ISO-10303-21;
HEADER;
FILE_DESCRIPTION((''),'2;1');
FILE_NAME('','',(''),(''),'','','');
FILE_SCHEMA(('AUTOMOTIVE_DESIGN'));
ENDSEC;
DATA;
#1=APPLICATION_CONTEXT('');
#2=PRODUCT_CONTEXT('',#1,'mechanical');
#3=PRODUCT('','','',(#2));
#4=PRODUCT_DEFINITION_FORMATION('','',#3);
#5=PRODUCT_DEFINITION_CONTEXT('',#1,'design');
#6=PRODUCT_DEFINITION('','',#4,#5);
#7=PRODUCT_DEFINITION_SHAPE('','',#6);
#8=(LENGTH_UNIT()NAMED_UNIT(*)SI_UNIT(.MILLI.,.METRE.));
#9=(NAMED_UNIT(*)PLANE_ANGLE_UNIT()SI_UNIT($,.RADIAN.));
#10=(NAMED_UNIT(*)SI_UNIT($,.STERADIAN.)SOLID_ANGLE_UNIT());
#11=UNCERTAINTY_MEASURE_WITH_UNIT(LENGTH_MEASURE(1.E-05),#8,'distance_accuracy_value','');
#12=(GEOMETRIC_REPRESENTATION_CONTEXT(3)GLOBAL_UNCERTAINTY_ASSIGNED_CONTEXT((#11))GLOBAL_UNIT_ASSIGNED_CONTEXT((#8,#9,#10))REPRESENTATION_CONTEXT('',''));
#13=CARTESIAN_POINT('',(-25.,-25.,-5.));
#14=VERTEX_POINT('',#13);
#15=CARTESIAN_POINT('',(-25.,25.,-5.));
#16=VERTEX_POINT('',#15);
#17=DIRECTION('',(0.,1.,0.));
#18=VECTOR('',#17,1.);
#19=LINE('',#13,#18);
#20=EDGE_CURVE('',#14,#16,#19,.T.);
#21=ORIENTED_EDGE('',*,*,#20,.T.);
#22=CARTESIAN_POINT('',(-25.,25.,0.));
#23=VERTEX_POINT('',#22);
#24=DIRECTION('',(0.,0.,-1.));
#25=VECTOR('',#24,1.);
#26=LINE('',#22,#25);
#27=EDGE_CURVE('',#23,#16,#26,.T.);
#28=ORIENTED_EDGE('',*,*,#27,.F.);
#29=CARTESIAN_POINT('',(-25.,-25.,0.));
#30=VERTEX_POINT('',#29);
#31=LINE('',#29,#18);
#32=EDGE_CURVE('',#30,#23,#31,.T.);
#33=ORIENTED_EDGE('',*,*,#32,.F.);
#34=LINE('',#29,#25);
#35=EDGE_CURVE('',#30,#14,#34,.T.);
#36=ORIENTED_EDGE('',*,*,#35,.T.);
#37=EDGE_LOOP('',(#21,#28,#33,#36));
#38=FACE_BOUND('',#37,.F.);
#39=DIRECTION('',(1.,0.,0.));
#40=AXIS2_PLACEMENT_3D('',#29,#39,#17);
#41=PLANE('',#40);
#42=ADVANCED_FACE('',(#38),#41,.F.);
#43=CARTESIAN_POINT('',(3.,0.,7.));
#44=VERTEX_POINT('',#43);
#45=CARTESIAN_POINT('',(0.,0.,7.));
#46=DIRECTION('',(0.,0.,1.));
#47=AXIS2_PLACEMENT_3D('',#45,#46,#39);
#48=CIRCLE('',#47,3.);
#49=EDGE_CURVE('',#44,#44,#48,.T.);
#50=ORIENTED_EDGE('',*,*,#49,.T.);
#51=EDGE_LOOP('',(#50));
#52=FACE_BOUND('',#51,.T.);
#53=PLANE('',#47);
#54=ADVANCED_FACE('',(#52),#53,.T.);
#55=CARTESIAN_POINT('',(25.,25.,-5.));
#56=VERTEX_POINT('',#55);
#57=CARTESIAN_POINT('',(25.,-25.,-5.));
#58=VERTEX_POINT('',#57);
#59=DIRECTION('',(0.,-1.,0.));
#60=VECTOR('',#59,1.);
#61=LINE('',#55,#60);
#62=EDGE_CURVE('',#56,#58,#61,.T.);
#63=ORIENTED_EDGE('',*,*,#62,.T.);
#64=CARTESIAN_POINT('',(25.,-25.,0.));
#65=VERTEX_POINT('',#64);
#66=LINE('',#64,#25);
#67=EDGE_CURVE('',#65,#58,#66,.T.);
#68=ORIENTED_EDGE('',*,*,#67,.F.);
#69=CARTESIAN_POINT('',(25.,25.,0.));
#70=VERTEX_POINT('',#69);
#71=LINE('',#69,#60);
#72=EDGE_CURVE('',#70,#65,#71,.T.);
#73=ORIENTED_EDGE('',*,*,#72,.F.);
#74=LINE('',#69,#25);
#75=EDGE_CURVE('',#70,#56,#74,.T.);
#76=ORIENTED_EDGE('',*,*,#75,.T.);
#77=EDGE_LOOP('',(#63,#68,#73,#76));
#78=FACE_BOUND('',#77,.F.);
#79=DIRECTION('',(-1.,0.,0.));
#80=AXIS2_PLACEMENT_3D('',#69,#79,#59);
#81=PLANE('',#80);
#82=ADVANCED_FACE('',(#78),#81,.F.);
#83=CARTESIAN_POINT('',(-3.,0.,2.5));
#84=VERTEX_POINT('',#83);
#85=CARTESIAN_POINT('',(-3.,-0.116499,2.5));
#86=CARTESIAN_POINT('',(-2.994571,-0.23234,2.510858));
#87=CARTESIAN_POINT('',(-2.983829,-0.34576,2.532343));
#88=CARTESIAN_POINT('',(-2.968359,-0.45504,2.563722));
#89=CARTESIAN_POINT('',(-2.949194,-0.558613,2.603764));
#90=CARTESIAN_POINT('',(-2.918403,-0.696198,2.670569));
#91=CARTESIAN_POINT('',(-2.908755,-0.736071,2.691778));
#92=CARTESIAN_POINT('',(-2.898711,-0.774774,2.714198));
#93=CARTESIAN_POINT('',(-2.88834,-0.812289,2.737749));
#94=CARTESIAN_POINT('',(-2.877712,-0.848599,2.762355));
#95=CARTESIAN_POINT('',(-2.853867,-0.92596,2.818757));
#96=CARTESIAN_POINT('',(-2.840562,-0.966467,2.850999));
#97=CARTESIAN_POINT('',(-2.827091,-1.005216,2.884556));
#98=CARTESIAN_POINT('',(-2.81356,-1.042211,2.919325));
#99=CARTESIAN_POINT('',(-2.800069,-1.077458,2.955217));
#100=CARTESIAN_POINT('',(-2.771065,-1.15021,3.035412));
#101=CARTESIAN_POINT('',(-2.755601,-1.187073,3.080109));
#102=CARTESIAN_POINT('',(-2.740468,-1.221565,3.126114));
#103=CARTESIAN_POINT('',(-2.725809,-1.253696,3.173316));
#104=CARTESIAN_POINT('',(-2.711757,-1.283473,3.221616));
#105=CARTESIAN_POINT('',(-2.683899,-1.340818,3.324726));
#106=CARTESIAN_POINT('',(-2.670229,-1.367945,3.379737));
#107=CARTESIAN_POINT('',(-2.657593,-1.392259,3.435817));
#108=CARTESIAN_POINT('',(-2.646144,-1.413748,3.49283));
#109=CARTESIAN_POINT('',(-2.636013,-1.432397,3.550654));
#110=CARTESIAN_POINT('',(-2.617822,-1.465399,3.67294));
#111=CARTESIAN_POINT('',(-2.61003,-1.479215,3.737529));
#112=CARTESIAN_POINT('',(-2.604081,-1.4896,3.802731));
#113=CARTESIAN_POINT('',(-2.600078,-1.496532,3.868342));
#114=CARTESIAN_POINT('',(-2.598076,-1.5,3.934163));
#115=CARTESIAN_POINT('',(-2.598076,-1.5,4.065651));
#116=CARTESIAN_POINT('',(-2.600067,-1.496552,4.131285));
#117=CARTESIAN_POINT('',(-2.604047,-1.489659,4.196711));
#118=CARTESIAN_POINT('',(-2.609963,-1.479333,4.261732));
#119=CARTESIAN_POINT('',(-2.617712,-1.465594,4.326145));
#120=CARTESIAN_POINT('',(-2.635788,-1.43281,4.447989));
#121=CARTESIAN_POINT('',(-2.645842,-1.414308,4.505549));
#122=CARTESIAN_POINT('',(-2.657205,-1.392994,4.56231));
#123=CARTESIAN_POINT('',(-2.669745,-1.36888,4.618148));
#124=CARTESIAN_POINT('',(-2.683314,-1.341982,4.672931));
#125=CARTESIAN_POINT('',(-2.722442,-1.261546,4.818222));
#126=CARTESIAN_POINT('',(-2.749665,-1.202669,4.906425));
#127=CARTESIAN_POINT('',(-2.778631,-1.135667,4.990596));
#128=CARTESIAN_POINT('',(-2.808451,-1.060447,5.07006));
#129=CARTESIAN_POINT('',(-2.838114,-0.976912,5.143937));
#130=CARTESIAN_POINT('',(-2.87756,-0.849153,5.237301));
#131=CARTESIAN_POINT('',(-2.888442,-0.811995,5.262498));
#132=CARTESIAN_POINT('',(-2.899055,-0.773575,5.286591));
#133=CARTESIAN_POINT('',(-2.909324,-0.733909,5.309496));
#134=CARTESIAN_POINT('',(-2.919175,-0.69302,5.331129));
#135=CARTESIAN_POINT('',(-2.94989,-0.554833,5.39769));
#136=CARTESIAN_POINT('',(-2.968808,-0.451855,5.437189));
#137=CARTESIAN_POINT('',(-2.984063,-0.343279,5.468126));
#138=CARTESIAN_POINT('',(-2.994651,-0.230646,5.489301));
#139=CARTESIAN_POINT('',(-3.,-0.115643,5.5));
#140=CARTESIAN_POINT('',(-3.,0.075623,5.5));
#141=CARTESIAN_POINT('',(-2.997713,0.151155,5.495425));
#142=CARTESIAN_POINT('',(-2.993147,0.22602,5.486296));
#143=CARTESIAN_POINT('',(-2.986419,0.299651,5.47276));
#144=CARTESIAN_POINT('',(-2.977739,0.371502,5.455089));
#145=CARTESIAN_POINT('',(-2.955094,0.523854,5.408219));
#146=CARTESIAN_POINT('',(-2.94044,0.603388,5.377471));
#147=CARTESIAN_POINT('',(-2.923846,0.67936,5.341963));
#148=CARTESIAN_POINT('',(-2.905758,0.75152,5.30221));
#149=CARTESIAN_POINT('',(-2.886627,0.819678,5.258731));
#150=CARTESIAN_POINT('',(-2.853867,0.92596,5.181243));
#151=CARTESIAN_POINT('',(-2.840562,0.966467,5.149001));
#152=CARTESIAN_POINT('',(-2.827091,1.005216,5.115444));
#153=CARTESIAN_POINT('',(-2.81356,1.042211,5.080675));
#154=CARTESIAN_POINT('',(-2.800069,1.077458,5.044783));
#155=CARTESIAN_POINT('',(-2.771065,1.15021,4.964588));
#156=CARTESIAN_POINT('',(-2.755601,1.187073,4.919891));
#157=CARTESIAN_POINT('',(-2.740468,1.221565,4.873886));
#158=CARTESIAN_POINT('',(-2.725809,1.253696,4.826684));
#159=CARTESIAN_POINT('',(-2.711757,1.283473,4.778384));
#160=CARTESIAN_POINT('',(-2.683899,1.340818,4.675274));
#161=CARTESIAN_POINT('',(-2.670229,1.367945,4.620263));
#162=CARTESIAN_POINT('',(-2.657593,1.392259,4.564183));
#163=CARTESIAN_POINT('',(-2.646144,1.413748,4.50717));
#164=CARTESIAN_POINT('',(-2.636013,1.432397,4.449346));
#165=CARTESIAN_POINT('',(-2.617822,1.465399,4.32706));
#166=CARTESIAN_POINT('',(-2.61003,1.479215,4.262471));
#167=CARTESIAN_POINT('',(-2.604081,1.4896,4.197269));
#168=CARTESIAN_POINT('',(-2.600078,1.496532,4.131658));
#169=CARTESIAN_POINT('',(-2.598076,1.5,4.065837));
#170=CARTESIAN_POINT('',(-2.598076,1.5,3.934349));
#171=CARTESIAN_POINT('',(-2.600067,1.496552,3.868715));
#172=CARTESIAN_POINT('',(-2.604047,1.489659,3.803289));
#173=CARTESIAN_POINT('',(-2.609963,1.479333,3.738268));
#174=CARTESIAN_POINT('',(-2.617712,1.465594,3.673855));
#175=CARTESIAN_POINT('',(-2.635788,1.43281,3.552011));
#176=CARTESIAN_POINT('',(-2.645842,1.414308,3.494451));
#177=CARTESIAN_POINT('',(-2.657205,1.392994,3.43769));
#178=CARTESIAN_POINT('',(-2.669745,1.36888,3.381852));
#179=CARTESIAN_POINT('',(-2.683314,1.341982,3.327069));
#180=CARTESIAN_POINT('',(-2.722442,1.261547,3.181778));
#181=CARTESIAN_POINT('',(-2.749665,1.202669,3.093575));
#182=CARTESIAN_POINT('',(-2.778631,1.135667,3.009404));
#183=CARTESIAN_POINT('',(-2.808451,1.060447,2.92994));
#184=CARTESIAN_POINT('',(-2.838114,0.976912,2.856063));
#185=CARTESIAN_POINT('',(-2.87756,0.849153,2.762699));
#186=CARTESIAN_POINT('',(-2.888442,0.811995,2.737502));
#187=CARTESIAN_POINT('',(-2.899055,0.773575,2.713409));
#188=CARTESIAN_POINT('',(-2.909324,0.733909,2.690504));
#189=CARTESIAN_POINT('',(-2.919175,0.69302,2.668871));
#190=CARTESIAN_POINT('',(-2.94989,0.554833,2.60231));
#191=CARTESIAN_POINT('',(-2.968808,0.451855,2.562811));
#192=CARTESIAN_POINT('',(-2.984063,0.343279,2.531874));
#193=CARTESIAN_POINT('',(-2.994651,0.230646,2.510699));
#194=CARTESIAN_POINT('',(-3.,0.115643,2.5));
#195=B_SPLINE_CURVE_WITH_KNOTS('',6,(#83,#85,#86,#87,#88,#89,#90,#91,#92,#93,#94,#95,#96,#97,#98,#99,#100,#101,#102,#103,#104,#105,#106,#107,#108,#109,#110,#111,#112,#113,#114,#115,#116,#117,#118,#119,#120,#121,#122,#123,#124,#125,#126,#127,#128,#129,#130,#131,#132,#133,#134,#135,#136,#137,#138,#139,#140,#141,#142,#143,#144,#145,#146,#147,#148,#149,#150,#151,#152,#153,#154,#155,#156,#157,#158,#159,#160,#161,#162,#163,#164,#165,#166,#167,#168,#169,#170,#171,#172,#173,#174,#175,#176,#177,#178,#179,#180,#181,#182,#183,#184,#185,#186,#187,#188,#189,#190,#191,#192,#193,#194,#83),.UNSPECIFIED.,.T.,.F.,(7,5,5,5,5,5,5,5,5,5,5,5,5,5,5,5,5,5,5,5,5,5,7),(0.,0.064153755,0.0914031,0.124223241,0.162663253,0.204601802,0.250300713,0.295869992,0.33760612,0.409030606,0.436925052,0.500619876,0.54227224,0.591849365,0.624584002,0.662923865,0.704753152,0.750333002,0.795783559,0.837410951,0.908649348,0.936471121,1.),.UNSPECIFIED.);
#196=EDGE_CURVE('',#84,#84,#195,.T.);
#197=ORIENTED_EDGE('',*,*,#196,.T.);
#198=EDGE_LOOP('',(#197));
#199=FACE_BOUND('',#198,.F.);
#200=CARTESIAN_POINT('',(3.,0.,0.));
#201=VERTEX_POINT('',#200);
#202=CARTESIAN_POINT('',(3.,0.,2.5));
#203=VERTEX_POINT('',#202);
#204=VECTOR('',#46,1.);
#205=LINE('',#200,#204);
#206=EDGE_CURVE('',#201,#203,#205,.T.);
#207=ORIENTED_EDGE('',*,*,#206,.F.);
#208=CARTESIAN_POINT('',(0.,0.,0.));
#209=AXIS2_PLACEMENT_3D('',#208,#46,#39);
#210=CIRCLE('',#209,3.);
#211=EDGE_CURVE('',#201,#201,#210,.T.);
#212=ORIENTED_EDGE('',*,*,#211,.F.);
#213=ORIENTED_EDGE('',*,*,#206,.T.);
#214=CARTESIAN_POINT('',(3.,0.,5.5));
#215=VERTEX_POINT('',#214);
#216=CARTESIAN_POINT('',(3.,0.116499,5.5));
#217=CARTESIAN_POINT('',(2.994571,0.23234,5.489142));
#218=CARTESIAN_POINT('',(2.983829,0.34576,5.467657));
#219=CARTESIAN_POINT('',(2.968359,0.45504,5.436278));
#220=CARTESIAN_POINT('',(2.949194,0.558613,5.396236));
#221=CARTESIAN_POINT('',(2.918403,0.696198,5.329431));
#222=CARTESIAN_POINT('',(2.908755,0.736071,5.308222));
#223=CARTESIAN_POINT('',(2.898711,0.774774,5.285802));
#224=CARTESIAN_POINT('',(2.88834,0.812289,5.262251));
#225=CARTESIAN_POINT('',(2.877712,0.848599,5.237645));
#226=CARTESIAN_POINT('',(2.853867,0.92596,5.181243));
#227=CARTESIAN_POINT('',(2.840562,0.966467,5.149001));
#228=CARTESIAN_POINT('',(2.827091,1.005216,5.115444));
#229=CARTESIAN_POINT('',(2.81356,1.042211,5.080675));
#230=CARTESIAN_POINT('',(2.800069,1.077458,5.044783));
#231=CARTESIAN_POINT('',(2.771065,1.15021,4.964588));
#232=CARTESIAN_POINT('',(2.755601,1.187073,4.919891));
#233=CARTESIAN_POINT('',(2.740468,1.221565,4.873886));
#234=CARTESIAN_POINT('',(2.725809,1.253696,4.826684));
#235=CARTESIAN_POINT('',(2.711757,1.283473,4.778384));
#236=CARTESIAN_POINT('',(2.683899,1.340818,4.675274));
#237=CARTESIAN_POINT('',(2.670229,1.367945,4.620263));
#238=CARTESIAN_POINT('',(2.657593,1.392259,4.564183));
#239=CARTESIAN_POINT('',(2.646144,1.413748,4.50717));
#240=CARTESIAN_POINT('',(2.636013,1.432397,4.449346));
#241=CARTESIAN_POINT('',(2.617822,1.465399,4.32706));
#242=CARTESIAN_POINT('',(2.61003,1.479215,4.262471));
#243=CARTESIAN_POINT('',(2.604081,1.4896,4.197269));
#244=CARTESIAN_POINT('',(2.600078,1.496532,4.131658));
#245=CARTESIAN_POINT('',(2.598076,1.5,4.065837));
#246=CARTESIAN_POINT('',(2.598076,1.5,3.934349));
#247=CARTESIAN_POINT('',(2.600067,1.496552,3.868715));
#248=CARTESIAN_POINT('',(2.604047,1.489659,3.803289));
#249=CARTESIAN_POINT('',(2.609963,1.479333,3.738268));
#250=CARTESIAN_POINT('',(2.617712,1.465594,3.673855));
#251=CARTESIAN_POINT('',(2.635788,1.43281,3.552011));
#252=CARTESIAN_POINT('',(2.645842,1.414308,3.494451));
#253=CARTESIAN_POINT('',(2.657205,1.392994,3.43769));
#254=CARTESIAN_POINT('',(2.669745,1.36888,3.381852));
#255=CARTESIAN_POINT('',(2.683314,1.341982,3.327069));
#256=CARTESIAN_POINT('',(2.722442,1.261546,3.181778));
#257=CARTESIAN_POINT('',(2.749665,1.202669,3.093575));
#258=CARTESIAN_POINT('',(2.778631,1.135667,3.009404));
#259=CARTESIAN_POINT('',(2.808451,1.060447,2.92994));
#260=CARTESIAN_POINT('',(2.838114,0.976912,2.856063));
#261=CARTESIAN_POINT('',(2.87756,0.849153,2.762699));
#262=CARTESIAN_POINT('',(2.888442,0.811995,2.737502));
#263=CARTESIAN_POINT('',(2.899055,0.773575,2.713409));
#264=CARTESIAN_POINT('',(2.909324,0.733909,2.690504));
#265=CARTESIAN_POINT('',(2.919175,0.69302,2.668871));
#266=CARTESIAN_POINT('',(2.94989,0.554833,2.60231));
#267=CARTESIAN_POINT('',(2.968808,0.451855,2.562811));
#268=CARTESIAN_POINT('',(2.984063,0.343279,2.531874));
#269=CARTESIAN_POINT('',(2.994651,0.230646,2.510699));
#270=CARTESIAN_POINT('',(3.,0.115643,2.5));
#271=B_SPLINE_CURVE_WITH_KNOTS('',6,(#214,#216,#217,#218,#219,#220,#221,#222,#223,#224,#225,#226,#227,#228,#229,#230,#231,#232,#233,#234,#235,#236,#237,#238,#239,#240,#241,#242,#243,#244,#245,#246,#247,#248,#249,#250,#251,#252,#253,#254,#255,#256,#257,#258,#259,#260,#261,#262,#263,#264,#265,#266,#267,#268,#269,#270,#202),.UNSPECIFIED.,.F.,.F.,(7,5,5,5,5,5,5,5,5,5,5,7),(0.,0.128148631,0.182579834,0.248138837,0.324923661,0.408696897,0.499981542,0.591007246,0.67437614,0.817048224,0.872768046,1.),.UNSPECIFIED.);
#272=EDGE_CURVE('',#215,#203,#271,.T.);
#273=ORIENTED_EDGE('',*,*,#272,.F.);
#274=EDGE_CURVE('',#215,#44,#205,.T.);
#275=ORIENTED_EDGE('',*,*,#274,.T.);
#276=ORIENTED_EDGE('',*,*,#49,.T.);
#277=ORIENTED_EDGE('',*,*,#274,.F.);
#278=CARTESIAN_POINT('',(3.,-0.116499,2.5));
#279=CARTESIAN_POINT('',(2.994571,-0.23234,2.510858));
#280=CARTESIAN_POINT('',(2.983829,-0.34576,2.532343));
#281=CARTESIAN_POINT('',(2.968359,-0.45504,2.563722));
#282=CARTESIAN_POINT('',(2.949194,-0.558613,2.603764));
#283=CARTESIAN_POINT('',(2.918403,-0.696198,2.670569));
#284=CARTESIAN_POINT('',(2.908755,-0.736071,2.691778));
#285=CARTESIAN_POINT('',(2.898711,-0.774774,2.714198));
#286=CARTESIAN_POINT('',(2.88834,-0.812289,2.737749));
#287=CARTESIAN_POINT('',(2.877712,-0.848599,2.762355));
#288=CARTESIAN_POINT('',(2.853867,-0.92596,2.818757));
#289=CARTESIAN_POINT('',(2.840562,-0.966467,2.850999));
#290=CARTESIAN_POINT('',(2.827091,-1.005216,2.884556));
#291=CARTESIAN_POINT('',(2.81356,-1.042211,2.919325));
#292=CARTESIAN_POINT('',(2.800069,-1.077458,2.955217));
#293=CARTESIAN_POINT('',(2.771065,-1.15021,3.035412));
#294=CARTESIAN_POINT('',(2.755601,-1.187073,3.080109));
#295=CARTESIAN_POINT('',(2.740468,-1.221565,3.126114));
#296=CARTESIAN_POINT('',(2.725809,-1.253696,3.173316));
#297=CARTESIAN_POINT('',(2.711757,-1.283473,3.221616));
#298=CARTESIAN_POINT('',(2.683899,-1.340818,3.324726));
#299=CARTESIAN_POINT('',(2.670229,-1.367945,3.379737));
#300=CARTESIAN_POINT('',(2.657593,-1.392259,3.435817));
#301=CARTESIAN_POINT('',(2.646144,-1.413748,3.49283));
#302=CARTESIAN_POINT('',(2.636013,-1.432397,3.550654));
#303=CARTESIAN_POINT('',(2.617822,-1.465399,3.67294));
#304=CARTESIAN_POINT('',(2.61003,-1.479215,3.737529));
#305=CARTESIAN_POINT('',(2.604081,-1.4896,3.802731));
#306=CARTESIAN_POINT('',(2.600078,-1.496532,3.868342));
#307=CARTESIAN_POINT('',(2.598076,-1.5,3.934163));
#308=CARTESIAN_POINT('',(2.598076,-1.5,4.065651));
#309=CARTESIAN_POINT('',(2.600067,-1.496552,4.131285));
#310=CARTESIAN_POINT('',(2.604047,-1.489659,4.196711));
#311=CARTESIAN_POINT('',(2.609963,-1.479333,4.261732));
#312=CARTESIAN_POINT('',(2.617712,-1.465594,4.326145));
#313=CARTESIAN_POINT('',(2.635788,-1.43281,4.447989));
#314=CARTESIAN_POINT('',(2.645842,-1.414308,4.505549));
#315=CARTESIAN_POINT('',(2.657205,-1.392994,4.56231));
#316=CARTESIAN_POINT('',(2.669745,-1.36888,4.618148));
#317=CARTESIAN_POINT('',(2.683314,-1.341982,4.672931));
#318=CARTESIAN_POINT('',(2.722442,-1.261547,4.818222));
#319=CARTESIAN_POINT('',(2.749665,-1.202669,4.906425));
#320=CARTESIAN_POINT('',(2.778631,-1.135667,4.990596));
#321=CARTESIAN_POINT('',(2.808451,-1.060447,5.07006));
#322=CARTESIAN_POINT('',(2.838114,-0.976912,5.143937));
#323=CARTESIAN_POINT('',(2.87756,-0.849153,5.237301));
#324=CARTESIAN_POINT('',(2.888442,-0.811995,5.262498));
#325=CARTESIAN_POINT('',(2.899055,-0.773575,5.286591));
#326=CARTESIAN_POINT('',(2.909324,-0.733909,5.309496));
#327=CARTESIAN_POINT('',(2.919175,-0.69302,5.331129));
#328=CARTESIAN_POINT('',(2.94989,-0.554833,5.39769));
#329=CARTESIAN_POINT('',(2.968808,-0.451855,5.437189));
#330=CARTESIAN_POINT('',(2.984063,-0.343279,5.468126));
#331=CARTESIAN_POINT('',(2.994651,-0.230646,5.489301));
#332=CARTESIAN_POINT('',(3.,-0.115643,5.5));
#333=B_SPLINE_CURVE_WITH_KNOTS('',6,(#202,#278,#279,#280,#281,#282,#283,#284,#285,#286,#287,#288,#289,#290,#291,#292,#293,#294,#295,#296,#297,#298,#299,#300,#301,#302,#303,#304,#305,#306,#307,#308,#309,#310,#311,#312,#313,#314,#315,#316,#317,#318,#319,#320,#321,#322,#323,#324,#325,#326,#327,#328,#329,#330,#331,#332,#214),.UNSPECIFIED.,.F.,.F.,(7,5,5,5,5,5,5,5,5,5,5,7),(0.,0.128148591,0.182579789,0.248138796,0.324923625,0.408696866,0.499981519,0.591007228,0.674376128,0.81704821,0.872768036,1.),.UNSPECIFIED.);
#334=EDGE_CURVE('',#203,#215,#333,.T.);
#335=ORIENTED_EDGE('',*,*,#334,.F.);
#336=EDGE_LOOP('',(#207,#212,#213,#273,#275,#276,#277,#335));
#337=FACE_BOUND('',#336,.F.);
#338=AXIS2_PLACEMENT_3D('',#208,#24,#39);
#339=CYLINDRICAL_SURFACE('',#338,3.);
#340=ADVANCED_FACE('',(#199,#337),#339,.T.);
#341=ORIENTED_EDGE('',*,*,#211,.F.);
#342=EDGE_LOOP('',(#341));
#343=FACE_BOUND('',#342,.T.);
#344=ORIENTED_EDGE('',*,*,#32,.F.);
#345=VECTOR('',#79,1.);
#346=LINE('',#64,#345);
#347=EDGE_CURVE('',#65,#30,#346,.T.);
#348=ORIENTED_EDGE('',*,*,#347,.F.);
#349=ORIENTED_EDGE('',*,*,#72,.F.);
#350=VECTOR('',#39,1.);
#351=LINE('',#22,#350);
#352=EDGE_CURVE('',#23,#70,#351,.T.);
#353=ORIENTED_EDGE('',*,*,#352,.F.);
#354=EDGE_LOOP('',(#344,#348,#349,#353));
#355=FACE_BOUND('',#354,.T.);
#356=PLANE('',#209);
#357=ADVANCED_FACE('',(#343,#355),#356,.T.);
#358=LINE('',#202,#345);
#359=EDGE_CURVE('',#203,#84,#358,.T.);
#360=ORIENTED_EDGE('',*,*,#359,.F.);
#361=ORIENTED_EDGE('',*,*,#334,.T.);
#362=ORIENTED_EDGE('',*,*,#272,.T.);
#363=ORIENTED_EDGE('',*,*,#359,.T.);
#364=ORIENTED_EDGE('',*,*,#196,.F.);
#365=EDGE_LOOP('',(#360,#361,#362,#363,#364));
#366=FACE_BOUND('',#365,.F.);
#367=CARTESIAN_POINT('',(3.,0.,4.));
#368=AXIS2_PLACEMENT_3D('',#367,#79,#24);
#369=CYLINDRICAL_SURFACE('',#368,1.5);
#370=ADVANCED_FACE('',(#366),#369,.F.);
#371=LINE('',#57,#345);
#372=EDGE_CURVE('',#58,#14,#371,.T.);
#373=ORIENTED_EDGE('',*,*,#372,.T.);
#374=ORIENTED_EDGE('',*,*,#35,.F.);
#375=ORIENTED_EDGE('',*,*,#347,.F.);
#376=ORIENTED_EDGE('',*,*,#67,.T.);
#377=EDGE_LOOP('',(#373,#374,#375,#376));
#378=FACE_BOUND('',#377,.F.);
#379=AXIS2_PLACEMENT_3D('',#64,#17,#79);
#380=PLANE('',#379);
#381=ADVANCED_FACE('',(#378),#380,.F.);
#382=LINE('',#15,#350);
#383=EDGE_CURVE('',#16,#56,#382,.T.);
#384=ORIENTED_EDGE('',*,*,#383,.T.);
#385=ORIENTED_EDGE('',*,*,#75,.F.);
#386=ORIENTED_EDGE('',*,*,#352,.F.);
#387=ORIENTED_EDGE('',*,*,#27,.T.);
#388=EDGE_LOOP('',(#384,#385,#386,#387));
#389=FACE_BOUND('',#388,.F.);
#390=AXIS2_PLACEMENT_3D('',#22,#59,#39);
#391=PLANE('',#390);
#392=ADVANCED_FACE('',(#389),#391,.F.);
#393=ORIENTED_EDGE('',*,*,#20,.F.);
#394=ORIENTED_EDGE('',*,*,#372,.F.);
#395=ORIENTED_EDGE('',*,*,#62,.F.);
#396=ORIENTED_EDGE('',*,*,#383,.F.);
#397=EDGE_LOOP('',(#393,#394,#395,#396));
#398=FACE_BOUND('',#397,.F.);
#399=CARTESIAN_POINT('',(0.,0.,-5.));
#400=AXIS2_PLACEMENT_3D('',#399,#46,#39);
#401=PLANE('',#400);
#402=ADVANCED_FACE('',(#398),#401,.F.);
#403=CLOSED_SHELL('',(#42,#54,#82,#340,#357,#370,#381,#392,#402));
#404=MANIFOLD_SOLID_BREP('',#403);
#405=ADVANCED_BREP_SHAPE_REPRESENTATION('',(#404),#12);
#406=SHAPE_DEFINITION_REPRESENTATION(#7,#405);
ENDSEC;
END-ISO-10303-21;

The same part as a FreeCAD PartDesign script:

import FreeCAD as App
import Part
import Sketcher

V = App.Vector


def add_polygon(sketch, points):
    """Adds a closed chain of lines whose ends are joined by coincident constraints."""
    first, n = sketch.GeometryCount, len(points)
    for a, b in zip(points, points[1:] + points[:1]):
        sketch.addGeometry(Part.LineSegment(App.Vector(*a, 0), App.Vector(*b, 0)), False)
    for i in range(n):
        sketch.addConstraint(Sketcher.Constraint("Coincident", first + i, 2, first + (i + 1) % n, 1))

doc = App.newDocument("Part")
body = doc.addObject("PartDesign::Body", "Body")

sketch1 = body.newObject("Sketcher::SketchObject", "Sketch")
sketch1.AttachmentSupport = (doc.getObject("XY_Plane"), [""])
sketch1.MapMode = "FlatFace"
add_polygon(sketch1, [(25, 25), (-25, 25), (-25, -25), (25, -25)])
sketch1.addConstraint([
    Sketcher.Constraint("Horizontal", 0),
    Sketcher.Constraint("Vertical", 1),
    Sketcher.Constraint("Horizontal", 2),
    Sketcher.Constraint("Vertical", 3),
    Sketcher.Constraint("Symmetric", 0, 2, 2, 2, -1, 1),
    Sketcher.Constraint("Equal", 2, 1),
    Sketcher.Constraint("DistanceX", 0, 2, 0, 1, 50.0),
])
pad1 = body.newObject("PartDesign::Pad", "Pad")
pad1.Profile = sketch1
pad1.Length = 5
pad1.Reversed = True

sketch2 = body.newObject("Sketcher::SketchObject", "Sketch001")
sketch2.AttachmentSupport = (doc.getObject("XY_Plane"), [""])
sketch2.MapMode = "FlatFace"
sketch2.addGeometry(Part.Circle(V(0, 0, 0), V(0, 0, 1), 3), False)
sketch2.addConstraint([
    Sketcher.Constraint("Coincident", 0, 3, -1, 1),
    Sketcher.Constraint("Diameter", 0, 6.0),
])
pad2 = body.newObject("PartDesign::Pad", "Pad001")
pad2.Profile = sketch2
pad2.Length = 7

sketch3 = body.newObject("Sketcher::SketchObject", "Sketch002")
sketch3.AttachmentSupport = (doc.getObject("YZ_Plane"), [""])
sketch3.MapMode = "FlatFace"
sketch3.AttachmentOffset = App.Placement(V(0, 0, 3), App.Rotation())
sketch3.addGeometry(Part.Circle(V(0, 4, 0), V(0, 0, 1), 1.5), False)
sketch3.addConstraint([
    Sketcher.Constraint("PointOnObject", 0, 3, -2),
    Sketcher.Constraint("Diameter", 0, 3.0),
    Sketcher.Constraint("DistanceY", -1, 1, 0, 3, 4.0),
])
doc.recompute()
hole = body.newObject("PartDesign::Hole", "Hole")
hole.Profile = sketch3
hole.ThreadType = "None"
hole.Diameter = 3
hole.DepthType = "ThroughAll"

doc.recompute()
